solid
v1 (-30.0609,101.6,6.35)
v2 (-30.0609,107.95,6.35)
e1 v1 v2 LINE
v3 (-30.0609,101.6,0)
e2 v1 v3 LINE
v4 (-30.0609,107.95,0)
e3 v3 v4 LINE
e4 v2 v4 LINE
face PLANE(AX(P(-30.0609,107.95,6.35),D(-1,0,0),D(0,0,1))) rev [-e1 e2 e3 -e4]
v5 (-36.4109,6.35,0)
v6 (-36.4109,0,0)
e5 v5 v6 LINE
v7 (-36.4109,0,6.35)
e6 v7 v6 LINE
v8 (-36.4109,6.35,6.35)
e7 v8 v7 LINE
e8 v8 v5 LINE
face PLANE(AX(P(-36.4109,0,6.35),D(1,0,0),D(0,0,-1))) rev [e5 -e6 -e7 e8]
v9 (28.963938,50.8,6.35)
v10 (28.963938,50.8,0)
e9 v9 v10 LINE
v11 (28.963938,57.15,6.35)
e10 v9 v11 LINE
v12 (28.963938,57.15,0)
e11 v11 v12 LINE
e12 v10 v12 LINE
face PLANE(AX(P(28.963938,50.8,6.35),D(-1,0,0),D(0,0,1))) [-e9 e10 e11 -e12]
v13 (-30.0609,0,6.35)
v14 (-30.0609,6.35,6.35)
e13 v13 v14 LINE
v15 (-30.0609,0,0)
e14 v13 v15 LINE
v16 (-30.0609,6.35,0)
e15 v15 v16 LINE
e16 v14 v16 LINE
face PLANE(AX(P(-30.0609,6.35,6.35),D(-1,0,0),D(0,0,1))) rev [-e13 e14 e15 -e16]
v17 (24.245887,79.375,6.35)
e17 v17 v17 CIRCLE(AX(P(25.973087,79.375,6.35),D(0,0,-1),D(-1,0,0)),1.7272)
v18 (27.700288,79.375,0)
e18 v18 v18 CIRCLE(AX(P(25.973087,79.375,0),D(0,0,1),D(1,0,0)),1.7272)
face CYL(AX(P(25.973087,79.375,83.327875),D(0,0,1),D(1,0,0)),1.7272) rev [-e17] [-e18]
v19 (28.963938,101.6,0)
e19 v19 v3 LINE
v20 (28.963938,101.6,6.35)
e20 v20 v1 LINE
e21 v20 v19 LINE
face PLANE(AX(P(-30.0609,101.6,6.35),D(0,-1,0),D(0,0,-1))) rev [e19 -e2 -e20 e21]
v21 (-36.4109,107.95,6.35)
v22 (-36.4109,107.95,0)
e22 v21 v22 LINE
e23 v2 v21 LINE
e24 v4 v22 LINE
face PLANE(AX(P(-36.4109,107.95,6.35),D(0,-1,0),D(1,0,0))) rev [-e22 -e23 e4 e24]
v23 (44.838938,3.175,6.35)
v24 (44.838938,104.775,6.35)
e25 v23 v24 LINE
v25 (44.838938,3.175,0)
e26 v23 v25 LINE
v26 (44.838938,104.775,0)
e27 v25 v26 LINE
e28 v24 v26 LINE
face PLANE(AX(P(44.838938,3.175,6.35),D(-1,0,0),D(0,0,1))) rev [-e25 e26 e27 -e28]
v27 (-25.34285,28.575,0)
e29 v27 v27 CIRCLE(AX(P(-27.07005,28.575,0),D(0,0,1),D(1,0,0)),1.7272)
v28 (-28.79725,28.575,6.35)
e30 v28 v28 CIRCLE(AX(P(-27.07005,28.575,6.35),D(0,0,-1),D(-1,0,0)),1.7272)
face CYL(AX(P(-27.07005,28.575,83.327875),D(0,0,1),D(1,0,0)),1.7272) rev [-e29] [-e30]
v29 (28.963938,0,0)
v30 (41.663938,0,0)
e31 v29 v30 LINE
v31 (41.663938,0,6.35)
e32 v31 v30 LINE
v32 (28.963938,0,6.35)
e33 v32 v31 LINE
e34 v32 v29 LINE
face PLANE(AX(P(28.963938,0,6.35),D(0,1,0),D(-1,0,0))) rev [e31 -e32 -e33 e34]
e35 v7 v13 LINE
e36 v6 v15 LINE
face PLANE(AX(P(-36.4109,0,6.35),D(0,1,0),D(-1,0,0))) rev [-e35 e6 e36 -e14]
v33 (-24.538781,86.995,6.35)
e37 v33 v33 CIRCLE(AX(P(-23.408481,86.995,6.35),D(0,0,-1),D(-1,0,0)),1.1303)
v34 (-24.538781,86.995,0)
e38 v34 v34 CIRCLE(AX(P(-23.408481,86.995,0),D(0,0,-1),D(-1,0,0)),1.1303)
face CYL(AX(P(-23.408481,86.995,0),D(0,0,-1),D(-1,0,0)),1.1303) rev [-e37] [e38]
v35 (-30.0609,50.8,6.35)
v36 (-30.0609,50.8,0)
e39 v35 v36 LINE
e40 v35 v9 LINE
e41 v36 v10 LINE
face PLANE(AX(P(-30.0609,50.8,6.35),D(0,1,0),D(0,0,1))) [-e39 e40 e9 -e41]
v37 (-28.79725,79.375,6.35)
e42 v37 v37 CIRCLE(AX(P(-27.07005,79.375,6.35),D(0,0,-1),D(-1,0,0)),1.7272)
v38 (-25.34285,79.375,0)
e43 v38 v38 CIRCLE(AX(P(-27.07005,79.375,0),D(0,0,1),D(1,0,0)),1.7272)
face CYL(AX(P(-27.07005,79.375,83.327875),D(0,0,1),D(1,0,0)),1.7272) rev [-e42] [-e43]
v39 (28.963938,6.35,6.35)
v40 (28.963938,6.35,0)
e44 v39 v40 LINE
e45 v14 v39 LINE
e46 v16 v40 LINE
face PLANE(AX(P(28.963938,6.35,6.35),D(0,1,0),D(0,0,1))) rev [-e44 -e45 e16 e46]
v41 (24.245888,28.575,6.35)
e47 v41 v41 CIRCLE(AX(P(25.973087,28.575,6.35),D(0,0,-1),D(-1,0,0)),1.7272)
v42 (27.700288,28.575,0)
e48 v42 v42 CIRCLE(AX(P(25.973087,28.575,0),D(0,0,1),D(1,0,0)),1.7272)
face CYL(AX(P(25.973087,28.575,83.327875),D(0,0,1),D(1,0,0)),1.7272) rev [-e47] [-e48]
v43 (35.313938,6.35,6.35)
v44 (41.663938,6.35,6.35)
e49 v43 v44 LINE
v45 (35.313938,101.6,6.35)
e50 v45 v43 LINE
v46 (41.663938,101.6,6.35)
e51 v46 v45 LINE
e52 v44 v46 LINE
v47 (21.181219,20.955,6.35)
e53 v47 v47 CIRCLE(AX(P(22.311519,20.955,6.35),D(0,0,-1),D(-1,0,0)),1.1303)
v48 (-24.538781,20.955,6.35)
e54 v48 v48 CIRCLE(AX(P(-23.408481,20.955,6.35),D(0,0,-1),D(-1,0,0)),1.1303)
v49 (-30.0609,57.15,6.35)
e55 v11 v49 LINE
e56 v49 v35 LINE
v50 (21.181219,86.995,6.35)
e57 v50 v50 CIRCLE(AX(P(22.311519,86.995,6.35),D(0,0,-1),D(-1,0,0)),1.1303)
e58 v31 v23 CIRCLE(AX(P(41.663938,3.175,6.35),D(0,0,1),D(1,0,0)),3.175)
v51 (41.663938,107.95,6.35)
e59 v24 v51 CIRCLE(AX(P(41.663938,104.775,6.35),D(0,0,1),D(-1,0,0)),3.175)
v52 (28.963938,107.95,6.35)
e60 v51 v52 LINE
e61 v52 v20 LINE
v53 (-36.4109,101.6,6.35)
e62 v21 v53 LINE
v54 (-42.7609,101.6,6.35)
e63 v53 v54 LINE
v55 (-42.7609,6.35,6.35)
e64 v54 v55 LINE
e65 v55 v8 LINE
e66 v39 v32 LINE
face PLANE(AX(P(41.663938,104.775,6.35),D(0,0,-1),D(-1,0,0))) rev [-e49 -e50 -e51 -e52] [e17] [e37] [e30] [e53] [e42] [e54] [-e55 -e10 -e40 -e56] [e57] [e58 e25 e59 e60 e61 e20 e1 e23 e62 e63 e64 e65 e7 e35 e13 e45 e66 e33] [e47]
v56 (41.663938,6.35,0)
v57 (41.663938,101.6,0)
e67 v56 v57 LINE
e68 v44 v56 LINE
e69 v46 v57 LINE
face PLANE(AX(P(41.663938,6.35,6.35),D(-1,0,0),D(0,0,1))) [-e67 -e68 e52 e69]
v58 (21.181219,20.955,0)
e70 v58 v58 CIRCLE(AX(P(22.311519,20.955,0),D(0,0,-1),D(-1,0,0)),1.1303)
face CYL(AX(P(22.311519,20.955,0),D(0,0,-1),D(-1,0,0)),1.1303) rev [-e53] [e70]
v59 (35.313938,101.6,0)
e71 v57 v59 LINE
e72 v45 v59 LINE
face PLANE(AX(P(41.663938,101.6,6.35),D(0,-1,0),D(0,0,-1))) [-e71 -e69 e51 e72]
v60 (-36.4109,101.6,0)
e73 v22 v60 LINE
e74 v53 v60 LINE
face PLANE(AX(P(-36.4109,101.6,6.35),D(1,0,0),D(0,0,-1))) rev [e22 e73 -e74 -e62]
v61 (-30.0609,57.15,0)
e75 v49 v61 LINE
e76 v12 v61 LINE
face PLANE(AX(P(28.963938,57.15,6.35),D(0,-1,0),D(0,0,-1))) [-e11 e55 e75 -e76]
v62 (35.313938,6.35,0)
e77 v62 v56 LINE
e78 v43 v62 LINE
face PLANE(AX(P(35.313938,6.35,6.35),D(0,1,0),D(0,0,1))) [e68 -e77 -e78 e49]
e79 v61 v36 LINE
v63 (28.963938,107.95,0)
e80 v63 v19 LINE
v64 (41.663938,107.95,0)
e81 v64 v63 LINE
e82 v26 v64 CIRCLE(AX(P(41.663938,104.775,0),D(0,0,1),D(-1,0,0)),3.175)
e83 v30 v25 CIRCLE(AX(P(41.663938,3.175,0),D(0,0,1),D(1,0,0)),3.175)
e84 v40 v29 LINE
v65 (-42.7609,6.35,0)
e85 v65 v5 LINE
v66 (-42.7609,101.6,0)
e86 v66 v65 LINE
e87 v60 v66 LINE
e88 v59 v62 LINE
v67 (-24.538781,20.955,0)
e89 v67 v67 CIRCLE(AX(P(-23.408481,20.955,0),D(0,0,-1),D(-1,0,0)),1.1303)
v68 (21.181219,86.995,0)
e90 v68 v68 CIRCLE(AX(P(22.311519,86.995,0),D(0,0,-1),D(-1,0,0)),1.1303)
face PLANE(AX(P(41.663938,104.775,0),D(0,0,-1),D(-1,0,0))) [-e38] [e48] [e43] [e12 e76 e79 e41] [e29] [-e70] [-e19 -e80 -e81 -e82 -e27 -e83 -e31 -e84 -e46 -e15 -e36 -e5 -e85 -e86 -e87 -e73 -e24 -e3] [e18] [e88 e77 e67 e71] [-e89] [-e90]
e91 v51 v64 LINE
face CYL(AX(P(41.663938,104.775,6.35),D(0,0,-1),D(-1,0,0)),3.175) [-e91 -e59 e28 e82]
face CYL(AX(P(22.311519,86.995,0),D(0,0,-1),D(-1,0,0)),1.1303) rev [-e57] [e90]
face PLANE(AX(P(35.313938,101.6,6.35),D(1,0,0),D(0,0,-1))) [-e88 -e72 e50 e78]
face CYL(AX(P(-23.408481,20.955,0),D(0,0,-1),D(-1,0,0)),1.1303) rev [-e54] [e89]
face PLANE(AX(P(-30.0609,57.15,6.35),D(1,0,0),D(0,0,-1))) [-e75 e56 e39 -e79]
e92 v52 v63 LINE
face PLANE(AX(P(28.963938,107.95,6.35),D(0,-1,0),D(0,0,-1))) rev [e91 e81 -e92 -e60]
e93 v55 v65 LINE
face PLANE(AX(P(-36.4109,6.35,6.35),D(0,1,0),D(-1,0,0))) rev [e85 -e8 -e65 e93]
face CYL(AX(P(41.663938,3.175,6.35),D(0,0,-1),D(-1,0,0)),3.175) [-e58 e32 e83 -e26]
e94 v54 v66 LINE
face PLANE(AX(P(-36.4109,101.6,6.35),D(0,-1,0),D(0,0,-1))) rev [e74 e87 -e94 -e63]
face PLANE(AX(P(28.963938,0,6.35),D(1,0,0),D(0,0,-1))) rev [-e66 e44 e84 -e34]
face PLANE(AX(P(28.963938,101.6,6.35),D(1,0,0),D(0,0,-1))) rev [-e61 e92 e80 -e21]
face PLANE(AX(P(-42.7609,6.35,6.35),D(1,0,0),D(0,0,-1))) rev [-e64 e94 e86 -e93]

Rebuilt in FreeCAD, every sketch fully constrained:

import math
import FreeCAD as App
import Part
import Sketcher
Q = App.Units.Quantity


def add_polygon(sketch, points):
    """Adds a closed chain of lines whose ends are joined by coincident constraints."""
    first, n = sketch.GeometryCount, len(points)
    for a, b in zip(points, points[1:] + points[:1]):
        sketch.addGeometry(Part.LineSegment(App.Vector(*a, 0), App.Vector(*b, 0)), False)
    for i in range(n):
        sketch.addConstraint(Sketcher.Constraint("Coincident", first + i, 2, first + (i + 1) % n, 1))

doc = App.newDocument("Part")
body = doc.addObject("PartDesign::Body", "Body")

sketch1 = body.newObject("Sketcher::SketchObject", "Sketch")
sketch1.AttachmentSupport = (doc.getObject("XY_Plane"), [""])
sketch1.MapMode = "FlatFace"
sketch1.addGeometry(Part.LineSegment(App.Vector(-36.4, 0, 0), App.Vector(-30.1, 0, 0)), False)
sketch1.addGeometry(Part.LineSegment(App.Vector(-30.1, 0, 0), App.Vector(-30.1, 6.3, 0)), False)
sketch1.addGeometry(Part.LineSegment(App.Vector(-30.1, 6.3, 0), App.Vector(29, 6.3, 0)), False)
sketch1.addGeometry(Part.LineSegment(App.Vector(29, 6.3, 0), App.Vector(29, 0, 0)), False)
sketch1.addGeometry(Part.LineSegment(App.Vector(29, 0, 0), App.Vector(41.7, 0, 0)), False)
sketch1.addGeometry(Part.ArcOfCircle(Part.Circle(App.Vector(41.7, 3.2, 0), App.Vector(0, 0, 1), 3.2), math.radians(-90), math.radians(0)), False)
sketch1.addGeometry(Part.LineSegment(App.Vector(44.8, 3.2, 0), App.Vector(44.8, 104.8, 0)), False)
sketch1.addGeometry(Part.ArcOfCircle(Part.Circle(App.Vector(41.7, 104.8, 0), App.Vector(0, 0, 1), 3.2), math.radians(0), math.radians(90)), False)
sketch1.addGeometry(Part.LineSegment(App.Vector(41.7, 108, 0), App.Vector(29, 108, 0)), False)
sketch1.addGeometry(Part.LineSegment(App.Vector(29, 108, 0), App.Vector(29, 101.6, 0)), False)
sketch1.addGeometry(Part.LineSegment(App.Vector(29, 101.6, 0), App.Vector(-30.1, 101.6, 0)), False)
sketch1.addGeometry(Part.LineSegment(App.Vector(-30.1, 101.6, 0), App.Vector(-30.1, 108, 0)), False)
sketch1.addGeometry(Part.LineSegment(App.Vector(-30.1, 108, 0), App.Vector(-36.4, 108, 0)), False)
sketch1.addGeometry(Part.LineSegment(App.Vector(-36.4, 108, 0), App.Vector(-36.4, 101.6, 0)), False)
sketch1.addGeometry(Part.LineSegment(App.Vector(-36.4, 101.6, 0), App.Vector(-42.8, 101.6, 0)), False)
sketch1.addGeometry(Part.LineSegment(App.Vector(-42.8, 101.6, 0), App.Vector(-42.8, 6.3, 0)), False)
sketch1.addGeometry(Part.LineSegment(App.Vector(-42.8, 6.3, 0), App.Vector(-36.4, 6.3, 0)), False)
sketch1.addGeometry(Part.LineSegment(App.Vector(-36.4, 6.3, 0), App.Vector(-36.4, 0, 0)), False)
add_polygon(sketch1, [(29, 50.8), (-30.1, 50.8), (-30.1, 57.1), (29, 57.1)])
add_polygon(sketch1, [(41.7, 6.3), (35.3, 6.3), (35.3, 101.6), (41.7, 101.6)])
sketch1.addConstraint(Sketcher.Constraint("Coincident", 0, 2, 1, 1))
sketch1.addConstraint(Sketcher.Constraint("Coincident", 1, 2, 2, 1))
sketch1.addConstraint(Sketcher.Constraint("Coincident", 2, 2, 3, 1))
sketch1.addConstraint(Sketcher.Constraint("Coincident", 3, 2, 4, 1))
sketch1.addConstraint(Sketcher.Constraint("Tangent", 4, 2, 5, 1))
sketch1.addConstraint(Sketcher.Constraint("Tangent", 5, 2, 6, 1))
sketch1.addConstraint(Sketcher.Constraint("Tangent", 6, 2, 7, 1))
sketch1.addConstraint(Sketcher.Constraint("Tangent", 7, 2, 8, 1))
sketch1.addConstraint(Sketcher.Constraint("Coincident", 8, 2, 9, 1))
sketch1.addConstraint(Sketcher.Constraint("Coincident", 9, 2, 10, 1))
sketch1.addConstraint(Sketcher.Constraint("Coincident", 10, 2, 11, 1))
sketch1.addConstraint(Sketcher.Constraint("Coincident", 11, 2, 12, 1))
sketch1.addConstraint(Sketcher.Constraint("Coincident", 12, 2, 13, 1))
sketch1.addConstraint(Sketcher.Constraint("Coincident", 13, 2, 14, 1))
sketch1.addConstraint(Sketcher.Constraint("Coincident", 14, 2, 15, 1))
sketch1.addConstraint(Sketcher.Constraint("Coincident", 15, 2, 16, 1))
sketch1.addConstraint(Sketcher.Constraint("Coincident", 16, 2, 17, 1))
sketch1.addConstraint(Sketcher.Constraint("Coincident", 17, 2, 0, 1))
sketch1.addConstraint(Sketcher.Constraint("Horizontal", 0))
sketch1.addConstraint(Sketcher.Constraint("Vertical", 1))
sketch1.addConstraint(Sketcher.Constraint("Horizontal", 2))
sketch1.addConstraint(Sketcher.Constraint("Vertical", 3))
sketch1.addConstraint(Sketcher.Constraint("Horizontal", 4))
sketch1.addConstraint(Sketcher.Constraint("Vertical", 6))
sketch1.addConstraint(Sketcher.Constraint("Horizontal", 8))
sketch1.addConstraint(Sketcher.Constraint("Vertical", 9))
sketch1.addConstraint(Sketcher.Constraint("Horizontal", 10))
sketch1.addConstraint(Sketcher.Constraint("Vertical", 11))
sketch1.addConstraint(Sketcher.Constraint("Horizontal", 12))
sketch1.addConstraint(Sketcher.Constraint("Vertical", 13))
sketch1.addConstraint(Sketcher.Constraint("Horizontal", 14))
sketch1.addConstraint(Sketcher.Constraint("Vertical", 15))
sketch1.addConstraint(Sketcher.Constraint("Horizontal", 16))
sketch1.addConstraint(Sketcher.Constraint("Vertical", 17))
sketch1.addConstraint(Sketcher.Constraint("Horizontal", 18))
sketch1.addConstraint(Sketcher.Constraint("Vertical", 19))
sketch1.addConstraint(Sketcher.Constraint("Horizontal", 20))
sketch1.addConstraint(Sketcher.Constraint("Vertical", 21))
sketch1.addConstraint(Sketcher.Constraint("Horizontal", 22))
sketch1.addConstraint(Sketcher.Constraint("Vertical", 23))
sketch1.addConstraint(Sketcher.Constraint("Horizontal", 24))
sketch1.addConstraint(Sketcher.Constraint("Vertical", 25))
sketch1.addConstraint(Sketcher.Constraint("Equal", 5, 7))
sketch1.addConstraint(Sketcher.Constraint("PointOnObject", 0, 2, -1))
sketch1.addConstraint(Sketcher.Constraint("PointOnObject", 3, 2, -1))
sketch1.addConstraint(Sketcher.Constraint("Horizontal", 8, 2, 11, 2))
sketch1.addConstraint(Sketcher.Constraint("Horizontal", 10, 2, 13, 2))
sketch1.addConstraint(Sketcher.Constraint("Horizontal", 2, 2, 15, 2))
sketch1.addConstraint(Sketcher.Constraint("Horizontal", 16, 2, 22, 2))
sketch1.addConstraint(Sketcher.Constraint("Horizontal", 14, 2, 23, 2))
sketch1.addConstraint(Sketcher.Constraint("Vertical", 3, 2, 8, 2))
sketch1.addConstraint(Sketcher.Constraint("Vertical", 1, 2, 10, 2))
sketch1.addConstraint(Sketcher.Constraint("Vertical", 13, 2, 16, 2))
sketch1.addConstraint(Sketcher.Constraint("Vertical", 11, 2, 18, 2))
sketch1.addConstraint(Sketcher.Constraint("Vertical", 9, 2, 20, 2))
sketch1.addConstraint(Sketcher.Constraint("Vertical", 7, 2, 24, 2))
sketch1.addConstraint(Sketcher.Constraint("Equal", 12, 14))
sketch1.addConstraint(Sketcher.Constraint("Equal", 16, 22))
sketch1.addConstraint(Sketcher.Constraint("Equal", 24, 1))
sketch1.addConstraint(Sketcher.Constraint("Equal", 3, 9))
sketch1.addConstraint(Sketcher.Constraint("Equal", 17, 19))
sketch1.addConstraint(Sketcher.Constraint("DistanceY", 6, 1, 6, 2, Q("4 in")))
sketch1.addConstraint(Sketcher.Constraint("DistanceX", 4, 1, 4, 2, Q("0.5 in")))
sketch1.addConstraint(Sketcher.Constraint("DistanceY", -1, 1, 9, 2, Q("4 in")))
sketch1.addConstraint(Sketcher.Constraint("DistanceY", -1, 1, 18, 2, Q("2 in")))
sketch1.addConstraint(Sketcher.Constraint("Radius", 5, Q("0.125 in")))
sketch1.addConstraint(Sketcher.Constraint("DistanceX", 0, 2, -1, 1, Q("1.1835 in")))
sketch1.addConstraint(Sketcher.Constraint("DistanceX", 2, 1, 2, 2, 59.024838))
pad1 = body.newObject("PartDesign::Pad", "Pad")
pad1.Profile = sketch1
pad1.Length = Q("0.25 in")

sketch2 = body.newObject("Sketcher::SketchObject", "Sketch001")
sketch2.AttachmentSupport = (doc.getObject("XY_Plane"), [""])
sketch2.MapMode = "FlatFace"
sketch2.AttachmentOffset = App.Placement(App.Vector(0, 0, 83.327875), App.Rotation())
sketch2.addGeometry(Part.Circle(App.Vector(26, 79.4, 0), App.Vector(0, 0, 1), 1.7), False)
sketch2.addGeometry(Part.Circle(App.Vector(26, 28.6, 0), App.Vector(0, 0, 1), 1.7), False)
sketch2.addGeometry(Part.Circle(App.Vector(-27.1, 28.6, 0), App.Vector(0, 0, 1), 1.7), False)
sketch2.addGeometry(Part.Circle(App.Vector(-27.1, 79.4, 0), App.Vector(0, 0, 1), 1.7), False)
sketch2.addConstraint(Sketcher.Constraint("Equal", 0, 1))
sketch2.addConstraint(Sketcher.Constraint("Equal", 1, 2))
sketch2.addConstraint(Sketcher.Constraint("Equal", 2, 3))
sketch2.addConstraint(Sketcher.Constraint("Horizontal", 1, 3, 2, 3))
sketch2.addConstraint(Sketcher.Constraint("Horizontal", 0, 3, 3, 3))
sketch2.addConstraint(Sketcher.Constraint("Vertical", 0, 3, 1, 3))
sketch2.addConstraint(Sketcher.Constraint("Vertical", 2, 3, 3, 3))
sketch2.addConstraint(Sketcher.Constraint("Diameter", 0, Q("0.136 in")))
sketch2.addConstraint(Sketcher.Constraint("DistanceY", 1, 3, 0, 3, Q("2 in")))
sketch2.addConstraint(Sketcher.Constraint("DistanceY", -1, 1, 0, 3, Q("3.125 in")))
sketch2.addConstraint(Sketcher.Constraint("DistanceX", 2, 3, -1, 1, 27.07005))
sketch2.addConstraint(Sketcher.Constraint("DistanceX", -1, 1, 0, 3, 25.973087))
doc.recompute()
hole = body.newObject("PartDesign::Hole", "Hole")
hole.Profile = sketch2
hole.ThreadType = "None"
hole.Diameter = Q("0.136 in")
hole.DepthType = "ThroughAll"

sketch3 = body.newObject("Sketcher::SketchObject", "Sketch002")
sketch3.AttachmentSupport = (doc.getObject("XY_Plane"), [""])
sketch3.MapMode = "FlatFace"
sketch3.AttachmentOffset = App.Placement(App.Vector(0, 0, 0.25 * 25.4), App.Rotation())
sketch3.addGeometry(Part.Circle(App.Vector(26, 79.4, 0), App.Vector(0, 0, 1), 1.7), False)
sketch3.addGeometry(Part.Circle(App.Vector(26, 28.6, 0), App.Vector(0, 0, 1), 1.7), False)
sketch3.addGeometry(Part.Circle(App.Vector(-27.1, 28.6, 0), App.Vector(0, 0, 1), 1.7), False)
sketch3.addGeometry(Part.Circle(App.Vector(-27.1, 79.4, 0), App.Vector(0, 0, 1), 1.7), False)
sketch3.addConstraint(Sketcher.Constraint("Equal", 0, 1))
sketch3.addConstraint(Sketcher.Constraint("Equal", 1, 2))
sketch3.addConstraint(Sketcher.Constraint("Equal", 2, 3))
sketch3.addConstraint(Sketcher.Constraint("Horizontal", 1, 3, 2, 3))
sketch3.addConstraint(Sketcher.Constraint("Horizontal", 0, 3, 3, 3))
sketch3.addConstraint(Sketcher.Constraint("Vertical", 0, 3, 1, 3))
sketch3.addConstraint(Sketcher.Constraint("Vertical", 2, 3, 3, 3))
sketch3.addConstraint(Sketcher.Constraint("Diameter", 0, Q("0.136 in")))
sketch3.addConstraint(Sketcher.Constraint("DistanceY", 1, 3, 0, 3, Q("2 in")))
sketch3.addConstraint(Sketcher.Constraint("DistanceY", -1, 1, 0, 3, Q("3.125 in")))
sketch3.addConstraint(Sketcher.Constraint("DistanceX", 2, 3, -1, 1, 27.07005))
sketch3.addConstraint(Sketcher.Constraint("DistanceX", -1, 1, 0, 3, 25.973087))
doc.recompute()
hole2 = body.newObject("PartDesign::Hole", "Hole001")
hole2.Profile = sketch3
hole2.ThreadType = "None"
hole2.Diameter = Q("0.136 in")
hole2.DepthType = "ThroughAll"

sketch4 = body.newObject("Sketcher::SketchObject", "Sketch003")
sketch4.AttachmentSupport = (doc.getObject("XY_Plane"), [""])
sketch4.MapMode = "FlatFace"
sketch4.addGeometry(Part.Circle(App.Vector(-23.4, 87, 0), App.Vector(0, 0, 1), 1.1), False)
sketch4.addGeometry(Part.Circle(App.Vector(-23.4, 21, 0), App.Vector(0, 0, 1), 1.1), False)
sketch4.addGeometry(Part.Circle(App.Vector(22.3, 21, 0), App.Vector(0, 0, 1), 1.1), False)
sketch4.addGeometry(Part.Circle(App.Vector(22.3, 87, 0), App.Vector(0, 0, 1), 1.1), False)
sketch4.addConstraint(Sketcher.Constraint("Equal", 0, 1))
sketch4.addConstraint(Sketcher.Constraint("Equal", 1, 2))
sketch4.addConstraint(Sketcher.Constraint("Equal", 2, 3))
sketch4.addConstraint(Sketcher.Constraint("Horizontal", 1, 3, 2, 3))
sketch4.addConstraint(Sketcher.Constraint("Horizontal", 0, 3, 3, 3))
sketch4.addConstraint(Sketcher.Constraint("Vertical", 0, 3, 1, 3))
sketch4.addConstraint(Sketcher.Constraint("Vertical", 2, 3, 3, 3))
sketch4.addConstraint(Sketcher.Constraint("Diameter", 0, Q("0.089 in")))
sketch4.addConstraint(Sketcher.Constraint("DistanceY", 1, 3, 0, 3, Q("2.6 in")))
sketch4.addConstraint(Sketcher.Constraint("DistanceX", 1, 3, 2, 3, Q("1.8 in")))
sketch4.addConstraint(Sketcher.Constraint("DistanceY", -1, 1, 0, 3, Q("3.425 in")))
sketch4.addConstraint(Sketcher.Constraint("DistanceX", 0, 3, -1, 1, 23.408481))
doc.recompute()
hole3 = body.newObject("PartDesign::Hole", "Hole002")
hole3.Profile = sketch4
hole3.ThreadType = "None"
hole3.Diameter = Q("0.089 in")
hole3.DepthType = "ThroughAll"
hole3.Reversed = True

doc.recompute()
